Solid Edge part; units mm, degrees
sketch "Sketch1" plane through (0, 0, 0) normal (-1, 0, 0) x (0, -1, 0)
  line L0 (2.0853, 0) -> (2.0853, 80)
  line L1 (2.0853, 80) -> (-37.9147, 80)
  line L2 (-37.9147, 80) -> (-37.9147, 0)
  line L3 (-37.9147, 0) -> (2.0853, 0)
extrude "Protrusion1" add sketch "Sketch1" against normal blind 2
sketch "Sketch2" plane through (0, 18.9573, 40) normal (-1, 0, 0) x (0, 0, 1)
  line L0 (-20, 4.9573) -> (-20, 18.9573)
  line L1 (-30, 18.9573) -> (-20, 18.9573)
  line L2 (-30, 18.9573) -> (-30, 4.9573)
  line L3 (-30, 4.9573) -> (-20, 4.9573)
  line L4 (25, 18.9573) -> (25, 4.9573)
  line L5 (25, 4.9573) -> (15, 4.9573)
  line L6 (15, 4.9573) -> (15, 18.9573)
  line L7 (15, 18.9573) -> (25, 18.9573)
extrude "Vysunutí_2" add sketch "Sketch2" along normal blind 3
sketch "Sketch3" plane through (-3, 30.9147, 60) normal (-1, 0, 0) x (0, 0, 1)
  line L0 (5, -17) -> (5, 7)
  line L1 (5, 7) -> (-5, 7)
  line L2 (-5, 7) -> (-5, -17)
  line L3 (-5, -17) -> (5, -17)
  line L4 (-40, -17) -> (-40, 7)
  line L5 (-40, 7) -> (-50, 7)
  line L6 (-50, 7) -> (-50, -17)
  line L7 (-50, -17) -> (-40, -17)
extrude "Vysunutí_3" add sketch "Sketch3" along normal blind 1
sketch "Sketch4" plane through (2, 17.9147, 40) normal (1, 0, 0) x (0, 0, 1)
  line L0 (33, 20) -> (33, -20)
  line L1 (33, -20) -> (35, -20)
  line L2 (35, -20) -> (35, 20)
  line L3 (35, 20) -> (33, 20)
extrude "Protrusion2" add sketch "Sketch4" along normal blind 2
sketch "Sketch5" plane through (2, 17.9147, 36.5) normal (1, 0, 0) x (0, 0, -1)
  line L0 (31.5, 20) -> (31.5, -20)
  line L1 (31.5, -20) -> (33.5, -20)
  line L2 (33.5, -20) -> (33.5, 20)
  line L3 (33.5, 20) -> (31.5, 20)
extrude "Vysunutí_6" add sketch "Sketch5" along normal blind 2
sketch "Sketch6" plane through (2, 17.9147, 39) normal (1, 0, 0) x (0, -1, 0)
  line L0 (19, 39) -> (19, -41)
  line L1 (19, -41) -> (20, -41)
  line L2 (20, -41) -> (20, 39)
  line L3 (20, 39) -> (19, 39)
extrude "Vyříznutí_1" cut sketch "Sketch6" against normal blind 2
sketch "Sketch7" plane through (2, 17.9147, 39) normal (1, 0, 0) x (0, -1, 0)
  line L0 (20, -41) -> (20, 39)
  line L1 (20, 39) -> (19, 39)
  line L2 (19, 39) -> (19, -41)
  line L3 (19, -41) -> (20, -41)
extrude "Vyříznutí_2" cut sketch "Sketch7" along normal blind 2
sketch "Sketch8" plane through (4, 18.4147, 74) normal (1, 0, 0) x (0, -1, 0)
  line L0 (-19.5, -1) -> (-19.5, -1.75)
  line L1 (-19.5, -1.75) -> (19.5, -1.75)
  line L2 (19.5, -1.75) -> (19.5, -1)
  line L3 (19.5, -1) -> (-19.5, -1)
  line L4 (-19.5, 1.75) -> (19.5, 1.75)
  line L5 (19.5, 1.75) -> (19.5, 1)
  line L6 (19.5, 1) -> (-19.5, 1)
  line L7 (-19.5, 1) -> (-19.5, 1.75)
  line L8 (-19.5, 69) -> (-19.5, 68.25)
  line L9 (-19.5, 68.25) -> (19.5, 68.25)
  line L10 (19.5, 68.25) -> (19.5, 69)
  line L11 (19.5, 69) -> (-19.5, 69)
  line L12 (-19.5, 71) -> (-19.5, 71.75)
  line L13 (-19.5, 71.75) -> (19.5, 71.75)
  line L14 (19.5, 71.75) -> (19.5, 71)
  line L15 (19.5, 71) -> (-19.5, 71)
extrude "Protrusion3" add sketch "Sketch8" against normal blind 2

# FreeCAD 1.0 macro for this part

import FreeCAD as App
import Part
import Sketcher

V = App.Vector
Q = App.Units.Quantity

doc = App.newDocument("Part")
body = doc.addObject("PartDesign::Body", "Body")

sketch1 = body.newObject("Sketcher::SketchObject", "Sketch")
sketch1.AttachmentSupport = (doc.getObject("YZ_Plane"), [""])
sketch1.MapMode = "FlatFace"
sketch1.addGeometry(Part.LineSegment(V(37.9147, 0, 0), V(-2.0853, 0, 0)), False)
sketch1.addGeometry(Part.LineSegment(V(-2.0853, 0, 0), V(-2.0853, 80, 0)), False)
sketch1.addGeometry(Part.LineSegment(V(-2.0853, 80, 0), V(37.9147, 80, 0)), False)
sketch1.addGeometry(Part.LineSegment(V(37.9147, 80, 0), V(37.9147, 0, 0)), False)
sketch1.addConstraint(Sketcher.Constraint("Coincident", 0, 2, 1, 1))
sketch1.addConstraint(Sketcher.Constraint("Coincident", 1, 2, 2, 1))
sketch1.addConstraint(Sketcher.Constraint("Coincident", 2, 2, 3, 1))
sketch1.addConstraint(Sketcher.Constraint("Coincident", 3, 2, 0, 1))
sketch1.addConstraint(Sketcher.Constraint("Horizontal", 0))
sketch1.addConstraint(Sketcher.Constraint("Vertical", 1))
sketch1.addConstraint(Sketcher.Constraint("Horizontal", 2))
sketch1.addConstraint(Sketcher.Constraint("Vertical", 3))
sketch1.addConstraint(Sketcher.Constraint("PointOnObject", 0, 2, -1))
sketch1.addConstraint(Sketcher.Constraint("DistanceX", 0, 2, 0, 1, Q("40 mm")))
sketch1.addConstraint(Sketcher.Constraint("DistanceY", 1, 1, 1, 2, Q("80 mm")))
sketch1.addConstraint(Sketcher.Constraint("DistanceX", 0, 2, -1, 1, Q("2.0853 mm")))
pad1 = body.newObject("PartDesign::Pad", "Pad")
pad1.Profile = sketch1
pad1.Length = 2

sketch2 = body.newObject("Sketcher::SketchObject", "Sketch001")
sketch2.AttachmentSupport = (doc.getObject("YZ_Plane"), [""])
sketch2.MapMode = "FlatFace"
sketch2.addGeometry(Part.LineSegment(V(23.9146, 10, 0), V(23.9146, 20, 0)), False)
sketch2.addGeometry(Part.LineSegment(V(23.9146, 20, 0), V(37.9146, 20, 0)), False)
sketch2.addGeometry(Part.LineSegment(V(37.9146, 20, 0), V(37.9146, 10, 0)), False)
sketch2.addGeometry(Part.LineSegment(V(37.9146, 10, 0), V(23.9146, 10, 0)), False)
sketch2.addGeometry(Part.LineSegment(V(23.9146, 65, 0), V(37.9146, 65, 0)), False)
sketch2.addGeometry(Part.LineSegment(V(37.9146, 65, 0), V(37.9146, 55, 0)), False)
sketch2.addGeometry(Part.LineSegment(V(37.9146, 55, 0), V(23.9146, 55, 0)), False)
sketch2.addGeometry(Part.LineSegment(V(23.9146, 55, 0), V(23.9146, 65, 0)), False)
sketch2.addConstraint(Sketcher.Constraint("Coincident", 0, 2, 1, 1))
sketch2.addConstraint(Sketcher.Constraint("Coincident", 1, 2, 2, 1))
sketch2.addConstraint(Sketcher.Constraint("Coincident", 2, 2, 3, 1))
sketch2.addConstraint(Sketcher.Constraint("Coincident", 3, 2, 0, 1))
sketch2.addConstraint(Sketcher.Constraint("Coincident", 4, 2, 5, 1))
sketch2.addConstraint(Sketcher.Constraint("Coincident", 5, 2, 6, 1))
sketch2.addConstraint(Sketcher.Constraint("Coincident", 6, 2, 7, 1))
sketch2.addConstraint(Sketcher.Constraint("Coincident", 7, 2, 4, 1))
sketch2.addConstraint(Sketcher.Constraint("Vertical", 0))
sketch2.addConstraint(Sketcher.Constraint("Horizontal", 1))
sketch2.addConstraint(Sketcher.Constraint("Vertical", 2))
sketch2.addConstraint(Sketcher.Constraint("Horizontal", 3))
sketch2.addConstraint(Sketcher.Constraint("Horizontal", 4))
sketch2.addConstraint(Sketcher.Constraint("Vertical", 5))
sketch2.addConstraint(Sketcher.Constraint("Horizontal", 6))
sketch2.addConstraint(Sketcher.Constraint("Vertical", 7))
sketch2.addConstraint(Sketcher.Constraint("Vertical", 2, 2, 4, 2))
sketch2.addConstraint(Sketcher.Constraint("Vertical", 3, 2, 6, 2))
sketch2.addConstraint(Sketcher.Constraint("Equal", 2, 5))
sketch2.addConstraint(Sketcher.Constraint("DistanceX", 1, 1, 1, 2, Q("14 mm")))
sketch2.addConstraint(Sketcher.Constraint("DistanceY", 0, 1, 0, 2, Q("10 mm")))
sketch2.addConstraint(Sketcher.Constraint("DistanceY", -1, 1, 0, 2, Q("20 mm")))
sketch2.addConstraint(Sketcher.Constraint("DistanceY", -1, 1, 4, 2, Q("65 mm")))
sketch2.addConstraint(Sketcher.Constraint("DistanceX", -1, 1, 0, 2, Q("23.9146 mm")))
pad2 = body.newObject("PartDesign::Pad", "Pad001")
pad2.Profile = sketch2
pad2.Length = 3
pad2.Reversed = True

sketch3 = body.newObject("Sketcher::SketchObject", "Sketch002")
sketch3.AttachmentSupport = (doc.getObject("YZ_Plane"), [""])
sketch3.MapMode = "FlatFace"
sketch3.AttachmentOffset = App.Placement(V(0, 0, -3), App.Rotation())
sketch3.addGeometry(Part.LineSegment(V(13.9147, 55, 0), V(13.9147, 65, 0)), False)
sketch3.addGeometry(Part.LineSegment(V(13.9147, 65, 0), V(37.9147, 65, 0)), False)
sketch3.addGeometry(Part.LineSegment(V(37.9147, 65, 0), V(37.9147, 55, 0)), False)
sketch3.addGeometry(Part.LineSegment(V(37.9147, 55, 0), V(13.9147, 55, 0)), False)
sketch3.addGeometry(Part.LineSegment(V(13.9147, 10, 0), V(13.9147, 20, 0)), False)
sketch3.addGeometry(Part.LineSegment(V(13.9147, 20, 0), V(37.9147, 20, 0)), False)
sketch3.addGeometry(Part.LineSegment(V(37.9147, 20, 0), V(37.9147, 10, 0)), False)
sketch3.addGeometry(Part.LineSegment(V(37.9147, 10, 0), V(13.9147, 10, 0)), False)
sketch3.addConstraint(Sketcher.Constraint("Coincident", 0, 2, 1, 1))
sketch3.addConstraint(Sketcher.Constraint("Coincident", 1, 2, 2, 1))
sketch3.addConstraint(Sketcher.Constraint("Coincident", 2, 2, 3, 1))
sketch3.addConstraint(Sketcher.Constraint("Coincident", 3, 2, 0, 1))
sketch3.addConstraint(Sketcher.Constraint("Coincident", 4, 2, 5, 1))
sketch3.addConstraint(Sketcher.Constraint("Coincident", 5, 2, 6, 1))
sketch3.addConstraint(Sketcher.Constraint("Coincident", 6, 2, 7, 1))
sketch3.addConstraint(Sketcher.Constraint("Coincident", 7, 2, 4, 1))
sketch3.addConstraint(Sketcher.Constraint("Vertical", 0))
sketch3.addConstraint(Sketcher.Constraint("Horizontal", 1))
sketch3.addConstraint(Sketcher.Constraint("Vertical", 2))
sketch3.addConstraint(Sketcher.Constraint("Horizontal", 3))
sketch3.addConstraint(Sketcher.Constraint("Vertical", 4))
sketch3.addConstraint(Sketcher.Constraint("Horizontal", 5))
sketch3.addConstraint(Sketcher.Constraint("Vertical", 6))
sketch3.addConstraint(Sketcher.Constraint("Horizontal", 7))
sketch3.addConstraint(Sketcher.Constraint("Vertical", 3, 2, 4, 2))
sketch3.addConstraint(Sketcher.Constraint("Vertical", 2, 2, 5, 2))
sketch3.addConstraint(Sketcher.Constraint("Equal", 2, 4))
sketch3.addConstraint(Sketcher.Constraint("DistanceX", 1, 1, 1, 2, Q("24 mm")))
sketch3.addConstraint(Sketcher.Constraint("DistanceY", 0, 1, 0, 2, Q("10 mm")))
sketch3.addConstraint(Sketcher.Constraint("DistanceY", -1, 1, 0, 2, Q("65 mm")))
sketch3.addConstraint(Sketcher.Constraint("DistanceY", -1, 1, 4, 2, Q("20 mm")))
sketch3.addConstraint(Sketcher.Constraint("DistanceX", -1, 1, 0, 2, Q("13.9147 mm")))
pad3 = body.newObject("PartDesign::Pad", "Pad002")
pad3.Profile = sketch3
pad3.Length = 1
pad3.Reversed = True

sketch4 = body.newObject("Sketcher::SketchObject", "Sketch003")
sketch4.AttachmentSupport = (doc.getObject("YZ_Plane"), [""])
sketch4.MapMode = "FlatFace"
sketch4.AttachmentOffset = App.Placement(V(0, 0, 2), App.Rotation())
sketch4.addGeometry(Part.LineSegment(V(-2.0853, 75, 0), V(-2.0853, 73, 0)), False)
sketch4.addGeometry(Part.LineSegment(V(-2.0853, 73, 0), V(37.9147, 73, 0)), False)
sketch4.addGeometry(Part.LineSegment(V(37.9147, 73, 0), V(37.9147, 75, 0)), False)
sketch4.addGeometry(Part.LineSegment(V(37.9147, 75, 0), V(-2.0853, 75, 0)), False)
sketch4.addConstraint(Sketcher.Constraint("Coincident", 0, 2, 1, 1))
sketch4.addConstraint(Sketcher.Constraint("Coincident", 1, 2, 2, 1))
sketch4.addConstraint(Sketcher.Constraint("Coincident", 2, 2, 3, 1))
sketch4.addConstraint(Sketcher.Constraint("Coincident", 3, 2, 0, 1))
sketch4.addConstraint(Sketcher.Constraint("Vertical", 0))
sketch4.addConstraint(Sketcher.Constraint("Horizontal", 1))
sketch4.addConstraint(Sketcher.Constraint("Vertical", 2))
sketch4.addConstraint(Sketcher.Constraint("Horizontal", 3))
sketch4.addConstraint(Sketcher.Constraint("DistanceX", 1, 1, 1, 2, Q("40 mm")))
sketch4.addConstraint(Sketcher.Constraint("DistanceY", 0, 2, 0, 1, Q("2 mm")))
sketch4.addConstraint(Sketcher.Constraint("DistanceY", -1, 1, 0, 2, Q("73 mm")))
sketch4.addConstraint(Sketcher.Constraint("DistanceX", 0, 2, -1, 1, Q("2.0853 mm")))
pad4 = body.newObject("PartDesign::Pad", "Pad003")
pad4.Profile = sketch4
pad4.Length = 2

sketch5 = body.newObject("Sketcher::SketchObject", "Sketch004")
sketch5.AttachmentSupport = (doc.getObject("YZ_Plane"), [""])
sketch5.MapMode = "FlatFace"
sketch5.AttachmentOffset = App.Placement(V(0, 0, 2), App.Rotation())
sketch5.addGeometry(Part.LineSegment(V(37.9147, 3, 0), V(37.9147, 5, 0)), False)
sketch5.addGeometry(Part.LineSegment(V(37.9147, 5, 0), V(-2.0853, 5, 0)), False)
sketch5.addGeometry(Part.LineSegment(V(-2.0853, 5, 0), V(-2.0853, 3, 0)), False)
sketch5.addGeometry(Part.LineSegment(V(-2.0853, 3, 0), V(37.9147, 3, 0)), False)
sketch5.addConstraint(Sketcher.Constraint("Coincident", 0, 2, 1, 1))
sketch5.addConstraint(Sketcher.Constraint("Coincident", 1, 2, 2, 1))
sketch5.addConstraint(Sketcher.Constraint("Coincident", 2, 2, 3, 1))
sketch5.addConstraint(Sketcher.Constraint("Coincident", 3, 2, 0, 1))
sketch5.addConstraint(Sketcher.Constraint("Vertical", 0))
sketch5.addConstraint(Sketcher.Constraint("Horizontal", 1))
sketch5.addConstraint(Sketcher.Constraint("Vertical", 2))
sketch5.addConstraint(Sketcher.Constraint("Horizontal", 3))
sketch5.addConstraint(Sketcher.Constraint("DistanceX", 1, 2, 1, 1, Q("40 mm")))
sketch5.addConstraint(Sketcher.Constraint("DistanceY", 0, 1, 0, 2, Q("2 mm")))
sketch5.addConstraint(Sketcher.Constraint("DistanceY", -1, 1, 0, 2, Q("5 mm")))
sketch5.addConstraint(Sketcher.Constraint("DistanceX", -1, 1, 0, 2, Q("37.9147 mm")))
pad5 = body.newObject("PartDesign::Pad", "Pad004")
pad5.Profile = sketch5
pad5.Length = 2

sketch6 = body.newObject("Sketcher::SketchObject", "Sketch005")
sketch6.AttachmentSupport = (doc.getObject("YZ_Plane"), [""])
sketch6.MapMode = "FlatFace"
sketch6.AttachmentOffset = App.Placement(V(0, 0, 2), App.Rotation())
sketch6.addGeometry(Part.LineSegment(V(-2.0853, 0, 0), V(-1.0853, 0, 0)), False)
sketch6.addGeometry(Part.LineSegment(V(-1.0853, 0, 0), V(-1.0853, 80, 0)), False)
sketch6.addGeometry(Part.LineSegment(V(-1.0853, 80, 0), V(-2.0853, 80, 0)), False)
sketch6.addGeometry(Part.LineSegment(V(-2.0853, 80, 0), V(-2.0853, 0, 0)), False)
sketch6.addConstraint(Sketcher.Constraint("Coincident", 0, 2, 1, 1))
sketch6.addConstraint(Sketcher.Constraint("Coincident", 1, 2, 2, 1))
sketch6.addConstraint(Sketcher.Constraint("Coincident", 2, 2, 3, 1))
sketch6.addConstraint(Sketcher.Constraint("Coincident", 3, 2, 0, 1))
sketch6.addConstraint(Sketcher.Constraint("Horizontal", 0))
sketch6.addConstraint(Sketcher.Constraint("Vertical", 1))
sketch6.addConstraint(Sketcher.Constraint("Horizontal", 2))
sketch6.addConstraint(Sketcher.Constraint("Vertical", 3))
sketch6.addConstraint(Sketcher.Constraint("PointOnObject", 0, 2, -1))
sketch6.addConstraint(Sketcher.Constraint("DistanceX", 0, 1, 0, 2, Q("1 mm")))
sketch6.addConstraint(Sketcher.Constraint("DistanceY", 1, 1, 1, 2, Q("80 mm")))
sketch6.addConstraint(Sketcher.Constraint("DistanceX", 0, 2, -1, 1, Q("1.0853 mm")))
pocket1 = body.newObject("PartDesign::Pocket", "Pocket")
pocket1.Profile = sketch6
pocket1.Length = 2

sketch7 = body.newObject("Sketcher::SketchObject", "Sketch006")
sketch7.AttachmentSupport = (doc.getObject("YZ_Plane"), [""])
sketch7.MapMode = "FlatFace"
sketch7.AttachmentOffset = App.Placement(V(0, 0, 2), App.Rotation())
sketch7.addGeometry(Part.LineSegment(V(-1.0853, 80, 0), V(-2.0853, 80, 0)), False)
sketch7.addGeometry(Part.LineSegment(V(-2.0853, 80, 0), V(-2.0853, 0, 0)), False)
sketch7.addGeometry(Part.LineSegment(V(-2.0853, 0, 0), V(-1.0853, 0, 0)), False)
sketch7.addGeometry(Part.LineSegment(V(-1.0853, 0, 0), V(-1.0853, 80, 0)), False)
sketch7.addConstraint(Sketcher.Constraint("Coincident", 0, 2, 1, 1))
sketch7.addConstraint(Sketcher.Constraint("Coincident", 1, 2, 2, 1))
sketch7.addConstraint(Sketcher.Constraint("Coincident", 2, 2, 3, 1))
sketch7.addConstraint(Sketcher.Constraint("Coincident", 3, 2, 0, 1))
sketch7.addConstraint(Sketcher.Constraint("Horizontal", 0))
sketch7.addConstraint(Sketcher.Constraint("Vertical", 1))
sketch7.addConstraint(Sketcher.Constraint("Horizontal", 2))
sketch7.addConstraint(Sketcher.Constraint("Vertical", 3))
sketch7.addConstraint(Sketcher.Constraint("PointOnObject", 1, 2, -1))
sketch7.addConstraint(Sketcher.Constraint("DistanceX", 0, 2, 0, 1, Q("1 mm")))
sketch7.addConstraint(Sketcher.Constraint("DistanceY", 1, 2, 1, 1, Q("80 mm")))
sketch7.addConstraint(Sketcher.Constraint("DistanceX", 0, 2, -1, 1, Q("2.0853 mm")))
pocket2 = body.newObject("PartDesign::Pocket", "Pocket001")
pocket2.Profile = sketch7
pocket2.Length = 2
pocket2.Reversed = True

sketch8 = body.newObject("Sketcher::SketchObject", "Sketch007")
sketch8.AttachmentSupport = (doc.getObject("YZ_Plane"), [""])
sketch8.MapMode = "FlatFace"
sketch8.AttachmentOffset = App.Placement(V(0, 0, 4), App.Rotation())
sketch8.addGeometry(Part.LineSegment(V(-1.0853, 75, 0), V(37.9147, 75, 0)), False)
sketch8.addGeometry(Part.LineSegment(V(37.9147, 75, 0), V(37.9147, 75.75, 0)), False)
sketch8.addGeometry(Part.LineSegment(V(37.9147, 75.75, 0), V(-1.0853, 75.75, 0)), False)
sketch8.addGeometry(Part.LineSegment(V(-1.0853, 75.75, 0), V(-1.0853, 75, 0)), False)
sketch8.addGeometry(Part.LineSegment(V(-1.0853, 72.25, 0), V(37.9147, 72.25, 0)), False)
sketch8.addGeometry(Part.LineSegment(V(37.9147, 72.25, 0), V(37.9147, 73, 0)), False)
sketch8.addGeometry(Part.LineSegment(V(37.9147, 73, 0), V(-1.0853, 73, 0)), False)
sketch8.addGeometry(Part.LineSegment(V(-1.0853, 73, 0), V(-1.0853, 72.25, 0)), False)
sketch8.addGeometry(Part.LineSegment(V(-1.0853, 5, 0), V(37.9147, 5, 0)), False)
sketch8.addGeometry(Part.LineSegment(V(37.9147, 5, 0), V(37.9147, 5.75, 0)), False)
sketch8.addGeometry(Part.LineSegment(V(37.9147, 5.75, 0), V(-1.0853, 5.75, 0)), False)
sketch8.addGeometry(Part.LineSegment(V(-1.0853, 5.75, 0), V(-1.0853, 5, 0)), False)
sketch8.addGeometry(Part.LineSegment(V(37.9147, 2.25, 0), V(37.9147, 3, 0)), False)
sketch8.addGeometry(Part.LineSegment(V(37.9147, 3, 0), V(-1.0853, 3, 0)), False)
sketch8.addGeometry(Part.LineSegment(V(-1.0853, 3, 0), V(-1.0853, 2.25, 0)), False)
sketch8.addGeometry(Part.LineSegment(V(-1.0853, 2.25, 0), V(37.9147, 2.25, 0)), False)
sketch8.addConstraint(Sketcher.Constraint("Coincident", 0, 2, 1, 1))
sketch8.addConstraint(Sketcher.Constraint("Coincident", 1, 2, 2, 1))
sketch8.addConstraint(Sketcher.Constraint("Coincident", 2, 2, 3, 1))
sketch8.addConstraint(Sketcher.Constraint("Coincident", 3, 2, 0, 1))
sketch8.addConstraint(Sketcher.Constraint("Coincident", 4, 2, 5, 1))
sketch8.addConstraint(Sketcher.Constraint("Coincident", 5, 2, 6, 1))
sketch8.addConstraint(Sketcher.Constraint("Coincident", 6, 2, 7, 1))
sketch8.addConstraint(Sketcher.Constraint("Coincident", 7, 2, 4, 1))
sketch8.addConstraint(Sketcher.Constraint("Coincident", 8, 2, 9, 1))
sketch8.addConstraint(Sketcher.Constraint("Coincident", 9, 2, 10, 1))
sketch8.addConstraint(Sketcher.Constraint("Coincident", 10, 2, 11, 1))
sketch8.addConstraint(Sketcher.Constraint("Coincident", 11, 2, 8, 1))
sketch8.addConstraint(Sketcher.Constraint("Coincident", 12, 2, 13, 1))
sketch8.addConstraint(Sketcher.Constraint("Coincident", 13, 2, 14, 1))
sketch8.addConstraint(Sketcher.Constraint("Coincident", 14, 2, 15, 1))
sketch8.addConstraint(Sketcher.Constraint("Coincident", 15, 2, 12, 1))
sketch8.addConstraint(Sketcher.Constraint("Horizontal", 0))
sketch8.addConstraint(Sketcher.Constraint("Vertical", 1))
sketch8.addConstraint(Sketcher.Constraint("Horizontal", 2))
sketch8.addConstraint(Sketcher.Constraint("Vertical", 3))
sketch8.addConstraint(Sketcher.Constraint("Horizontal", 4))
sketch8.addConstraint(Sketcher.Constraint("Vertical", 5))
sketch8.addConstraint(Sketcher.Constraint("Horizontal", 6))
sketch8.addConstraint(Sketcher.Constraint("Vertical", 7))
sketch8.addConstraint(Sketcher.Constraint("Horizontal", 8))
sketch8.addConstraint(Sketcher.Constraint("Vertical", 9))
sketch8.addConstraint(Sketcher.Constraint("Horizontal", 10))
sketch8.addConstraint(Sketcher.Constraint("Vertical", 11))
sketch8.addConstraint(Sketcher.Constraint("Vertical", 12))
sketch8.addConstraint(Sketcher.Constraint("Horizontal", 13))
sketch8.addConstraint(Sketcher.Constraint("Vertical", 14))
sketch8.addConstraint(Sketcher.Constraint("Horizontal", 15))
sketch8.addConstraint(Sketcher.Constraint("Vertical", 1, 2, 4, 2))
sketch8.addConstraint(Sketcher.Constraint("Vertical", 3, 2, 6, 2))
sketch8.addConstraint(Sketcher.Constraint("Vertical", 5, 2, 8, 2))
sketch8.addConstraint(Sketcher.Constraint("Vertical", 7, 2, 10, 2))
sketch8.addConstraint(Sketcher.Constraint("Vertical", 9, 2, 12, 2))
sketch8.addConstraint(Sketcher.Constraint("Vertical", 11, 2, 13, 2))
sketch8.addConstraint(Sketcher.Constraint("Equal", 3, 5))
sketch8.addConstraint(Sketcher.Constraint("Equal", 7, 9))
sketch8.addConstraint(Sketcher.Constraint("Equal", 11, 12))
sketch8.addConstraint(Sketcher.Constraint("DistanceX", 0, 1, 0, 2, Q("39 mm")))
sketch8.addConstraint(Sketcher.Constraint("DistanceY", -1, 1, 0, 2, Q("75 mm")))
sketch8.addConstraint(Sketcher.Constraint("DistanceY", -1, 1, 5, 2, Q("73 mm")))
sketch8.addConstraint(Sketcher.Constraint("DistanceY", -1, 1, 8, 2, Q("5 mm")))
sketch8.addConstraint(Sketcher.Constraint("DistanceY", -1, 1, 12, 2, Q("3 mm")))
sketch8.addConstraint(Sketcher.Constraint("DistanceY", 1, 1, 1, 2, Q("0.75 mm")))
sketch8.addConstraint(Sketcher.Constraint("DistanceX", -1, 1, 0, 2, Q("37.9147 mm")))
pad6 = body.newObject("PartDesign::Pad", "Pad005")
pad6.Profile = sketch8
pad6.Length = 2
pad6.Reversed = True

doc.recompute()
